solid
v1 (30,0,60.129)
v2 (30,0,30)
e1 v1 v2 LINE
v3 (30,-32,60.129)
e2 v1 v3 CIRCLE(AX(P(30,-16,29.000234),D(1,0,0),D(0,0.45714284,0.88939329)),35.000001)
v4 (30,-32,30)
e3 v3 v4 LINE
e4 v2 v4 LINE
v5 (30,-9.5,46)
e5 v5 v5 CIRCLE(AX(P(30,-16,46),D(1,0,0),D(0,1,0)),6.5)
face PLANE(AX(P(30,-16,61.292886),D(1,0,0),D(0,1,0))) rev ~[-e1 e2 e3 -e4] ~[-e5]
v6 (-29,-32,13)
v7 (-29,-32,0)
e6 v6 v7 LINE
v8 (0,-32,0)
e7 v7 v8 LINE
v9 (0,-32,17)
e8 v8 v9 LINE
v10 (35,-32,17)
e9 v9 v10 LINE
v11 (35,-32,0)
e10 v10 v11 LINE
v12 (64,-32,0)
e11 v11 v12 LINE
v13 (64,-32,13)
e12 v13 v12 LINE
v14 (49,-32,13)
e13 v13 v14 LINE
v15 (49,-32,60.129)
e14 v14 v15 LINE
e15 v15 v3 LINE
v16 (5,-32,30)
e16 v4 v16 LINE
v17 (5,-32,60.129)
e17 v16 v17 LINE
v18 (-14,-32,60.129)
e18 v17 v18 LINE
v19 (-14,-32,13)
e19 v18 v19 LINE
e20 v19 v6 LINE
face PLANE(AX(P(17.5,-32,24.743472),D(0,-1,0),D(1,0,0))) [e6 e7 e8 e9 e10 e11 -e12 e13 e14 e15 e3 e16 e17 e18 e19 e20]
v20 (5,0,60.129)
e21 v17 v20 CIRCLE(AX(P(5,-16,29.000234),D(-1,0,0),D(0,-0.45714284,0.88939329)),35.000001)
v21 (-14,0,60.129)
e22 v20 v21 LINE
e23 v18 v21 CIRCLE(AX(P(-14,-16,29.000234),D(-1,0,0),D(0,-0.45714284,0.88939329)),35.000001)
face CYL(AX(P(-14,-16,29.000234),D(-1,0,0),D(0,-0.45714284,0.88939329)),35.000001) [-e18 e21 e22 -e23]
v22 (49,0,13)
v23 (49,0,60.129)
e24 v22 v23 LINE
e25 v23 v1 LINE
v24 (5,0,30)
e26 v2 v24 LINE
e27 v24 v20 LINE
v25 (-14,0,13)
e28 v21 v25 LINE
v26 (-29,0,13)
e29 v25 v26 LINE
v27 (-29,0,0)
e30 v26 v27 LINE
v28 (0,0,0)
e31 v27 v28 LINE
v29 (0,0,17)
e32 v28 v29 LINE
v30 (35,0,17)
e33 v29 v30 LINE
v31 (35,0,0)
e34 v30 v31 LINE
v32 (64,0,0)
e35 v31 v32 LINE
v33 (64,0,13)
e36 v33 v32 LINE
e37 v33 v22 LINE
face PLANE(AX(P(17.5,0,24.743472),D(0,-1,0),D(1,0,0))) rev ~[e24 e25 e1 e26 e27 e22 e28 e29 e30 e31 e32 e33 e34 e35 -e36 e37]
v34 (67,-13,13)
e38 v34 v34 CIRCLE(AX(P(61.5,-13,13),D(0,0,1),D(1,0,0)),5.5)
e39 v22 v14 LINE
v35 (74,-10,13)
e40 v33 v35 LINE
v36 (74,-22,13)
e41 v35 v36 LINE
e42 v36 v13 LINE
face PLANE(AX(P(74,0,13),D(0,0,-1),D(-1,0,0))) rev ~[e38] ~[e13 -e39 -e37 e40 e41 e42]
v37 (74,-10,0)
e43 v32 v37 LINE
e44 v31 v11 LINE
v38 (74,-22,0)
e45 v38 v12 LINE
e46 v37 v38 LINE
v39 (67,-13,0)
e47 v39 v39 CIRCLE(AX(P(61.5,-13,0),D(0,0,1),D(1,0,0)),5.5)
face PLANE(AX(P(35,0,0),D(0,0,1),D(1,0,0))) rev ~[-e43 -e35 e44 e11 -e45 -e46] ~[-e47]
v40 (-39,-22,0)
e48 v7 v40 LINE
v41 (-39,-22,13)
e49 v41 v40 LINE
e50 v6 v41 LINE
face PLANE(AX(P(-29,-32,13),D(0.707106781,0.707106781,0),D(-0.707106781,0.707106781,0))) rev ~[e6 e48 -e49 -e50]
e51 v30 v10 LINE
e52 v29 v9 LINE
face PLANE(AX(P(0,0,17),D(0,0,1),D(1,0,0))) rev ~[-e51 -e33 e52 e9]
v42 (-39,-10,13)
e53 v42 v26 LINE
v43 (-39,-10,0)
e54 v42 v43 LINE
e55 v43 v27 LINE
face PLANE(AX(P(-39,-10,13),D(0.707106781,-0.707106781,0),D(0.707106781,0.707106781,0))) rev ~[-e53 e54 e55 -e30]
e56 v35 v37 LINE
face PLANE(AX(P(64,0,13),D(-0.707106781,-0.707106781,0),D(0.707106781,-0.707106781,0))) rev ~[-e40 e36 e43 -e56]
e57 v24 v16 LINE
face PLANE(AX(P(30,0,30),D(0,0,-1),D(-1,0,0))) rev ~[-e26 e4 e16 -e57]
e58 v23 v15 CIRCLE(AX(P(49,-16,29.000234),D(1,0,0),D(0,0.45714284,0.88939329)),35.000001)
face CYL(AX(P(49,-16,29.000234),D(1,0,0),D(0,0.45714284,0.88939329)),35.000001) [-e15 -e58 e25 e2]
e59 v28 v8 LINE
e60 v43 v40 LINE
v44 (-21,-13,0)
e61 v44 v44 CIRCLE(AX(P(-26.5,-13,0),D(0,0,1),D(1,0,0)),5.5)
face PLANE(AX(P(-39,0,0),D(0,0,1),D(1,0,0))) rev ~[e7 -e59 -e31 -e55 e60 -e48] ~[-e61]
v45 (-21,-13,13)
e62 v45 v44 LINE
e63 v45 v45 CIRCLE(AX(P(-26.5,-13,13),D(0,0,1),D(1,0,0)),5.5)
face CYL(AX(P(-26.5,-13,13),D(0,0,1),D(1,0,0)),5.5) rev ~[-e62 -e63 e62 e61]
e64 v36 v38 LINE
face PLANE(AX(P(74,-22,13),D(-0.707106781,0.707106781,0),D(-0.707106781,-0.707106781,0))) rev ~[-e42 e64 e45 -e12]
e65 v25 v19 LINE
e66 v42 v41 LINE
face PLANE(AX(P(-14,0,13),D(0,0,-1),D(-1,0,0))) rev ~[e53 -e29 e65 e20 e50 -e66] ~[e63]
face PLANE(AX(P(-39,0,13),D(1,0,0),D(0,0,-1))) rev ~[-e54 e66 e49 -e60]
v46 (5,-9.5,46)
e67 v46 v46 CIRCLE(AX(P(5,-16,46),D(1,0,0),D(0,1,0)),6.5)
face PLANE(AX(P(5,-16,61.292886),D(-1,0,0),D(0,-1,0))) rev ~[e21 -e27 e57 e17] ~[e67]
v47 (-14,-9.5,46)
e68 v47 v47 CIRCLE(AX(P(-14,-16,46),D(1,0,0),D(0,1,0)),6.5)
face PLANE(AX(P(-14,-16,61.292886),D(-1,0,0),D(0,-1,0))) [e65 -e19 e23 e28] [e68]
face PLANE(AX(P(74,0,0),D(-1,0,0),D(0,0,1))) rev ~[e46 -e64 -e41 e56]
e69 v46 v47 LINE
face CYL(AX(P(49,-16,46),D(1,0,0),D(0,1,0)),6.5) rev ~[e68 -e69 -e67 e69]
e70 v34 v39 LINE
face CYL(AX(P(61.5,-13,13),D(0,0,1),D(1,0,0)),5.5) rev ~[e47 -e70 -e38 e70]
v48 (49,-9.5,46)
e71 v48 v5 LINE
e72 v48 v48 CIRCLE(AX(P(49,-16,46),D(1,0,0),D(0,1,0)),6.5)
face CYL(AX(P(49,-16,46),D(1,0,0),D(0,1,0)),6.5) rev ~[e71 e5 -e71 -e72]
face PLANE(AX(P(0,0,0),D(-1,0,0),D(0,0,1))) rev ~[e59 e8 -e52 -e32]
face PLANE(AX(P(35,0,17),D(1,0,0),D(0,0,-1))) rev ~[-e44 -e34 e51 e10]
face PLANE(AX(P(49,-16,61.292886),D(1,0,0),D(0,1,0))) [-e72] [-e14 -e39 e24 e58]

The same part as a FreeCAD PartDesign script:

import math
import FreeCAD as App
import Part
import Sketcher
from FreeCAD import Vector


def add_polygon(sketch, points):
    """Adds a closed chain of lines whose ends are joined by coincident constraints."""
    first, n = sketch.GeometryCount, len(points)
    for a, b in zip(points, points[1:] + points[:1]):
        sketch.addGeometry(Part.LineSegment(App.Vector(*a, 0), App.Vector(*b, 0)), False)
    for i in range(n):
        sketch.addConstraint(Sketcher.Constraint("Coincident", first + i, 2, first + (i + 1) % n, 1))

doc = App.newDocument("Part")
params = doc.addObject("Spreadsheet::Sheet", "Params")
for row, (alias, value) in enumerate([
    ("sketch1_width", "39 mm"),
    ("sketch1_width2", "35 mm"),
    ("sketch1_width3", "25 mm"),
    ("sketch1_height", "13 mm"),
    ("sketch1_height2", "17 mm"),
    ("pad1_length", "32 mm"),
    ("sketch2_width", "10 mm"),
    ("pocket1_length", "25 mm"),
    ("sketch3_diameter", "11 mm"),
    ("sketch3_width", "10 mm"),
    ("pocket2_length", "25 mm"),
    ("sketch4_diameter", "11 mm"),
    ("pocket3_length", "25 mm"),
    ("sketch5_radius", "35.000001 mm"),
    ("sketch5_width", "32 mm"),
    ("pad2_length", "19 mm"),
    ("sketch6_diameter", "13 mm"),
    ("sketch7_radius", "35.000001 mm"),
    ("sketch7_width", "32 mm"),
    ("pad3_length", "19 mm"),
], start=1):
    params.set(f"A{row}", alias)
    params.set(f"B{row}", "=" + value)
    params.setAlias(f"B{row}", alias)

body = doc.addObject("PartDesign::Body", "Body")

sketch1 = body.newObject("Sketcher::SketchObject", "Sketch")
sketch1.AttachmentSupport = (doc.getObject("XZ_Plane"), [""])
sketch1.MapMode = "FlatFace"
add_polygon(sketch1, [(-39, 13), (-39, 0), (0, 0), (0, 17), (35, 17), (35, 0), (74, 0), (74, 13), (49, 13), (49, 60), (30, 60), (30, 30), (5, 30), (5, 60), (-14, 60), (-14, 13)])
sketch1.addConstraint([
    Sketcher.Constraint("Vertical", 0),
    Sketcher.Constraint("Horizontal", 1),
    Sketcher.Constraint("Vertical", 2),
    Sketcher.Constraint("Horizontal", 3),
    Sketcher.Constraint("Vertical", 4),
    Sketcher.Constraint("Horizontal", 5),
    Sketcher.Constraint("Vertical", 6),
    Sketcher.Constraint("Horizontal", 7),
    Sketcher.Constraint("Vertical", 8),
    Sketcher.Constraint("Horizontal", 9),
    Sketcher.Constraint("Vertical", 10),
    Sketcher.Constraint("Horizontal", 11),
    Sketcher.Constraint("Vertical", 12),
    Sketcher.Constraint("Horizontal", 13),
    Sketcher.Constraint("Vertical", 14),
    Sketcher.Constraint("Horizontal", 15),
    Sketcher.Constraint("Coincident", 1, 2, -1, 1),
    Sketcher.Constraint("PointOnObject", 4, 2, -1),
    Sketcher.Constraint("Horizontal", 9, 2, 12, 2),
    Sketcher.Constraint("Horizontal", 7, 2, 14, 2),
    Sketcher.Constraint("Equal", 1, 5),
    Sketcher.Constraint("Equal", 7, 11),
    Sketcher.Constraint("Equal", 9, 13),
    Sketcher.Constraint("Equal", 11, 15),
    Sketcher.Constraint("DistanceX", 1, 1, 1, 2, 39.0),
    Sketcher.Constraint("DistanceX", 3, 1, 3, 2, 35.0),
    Sketcher.Constraint("DistanceX", 7, 2, 7, 1, 25.0),
    Sketcher.Constraint("DistanceY", 0, 2, 0, 1, 13.0),
    Sketcher.Constraint("DistanceY", 2, 1, 2, 2, 17.0),
    Sketcher.Constraint("DistanceY", -1, 1, 10, 2, 30.0),
    Sketcher.Constraint("DistanceY", 8, 1, 8, 2, 47.129),
])
sketch1.setExpression("Constraints[40]", "Params.sketch1_width")
sketch1.setExpression("Constraints[41]", "Params.sketch1_width2")
sketch1.setExpression("Constraints[42]", "Params.sketch1_width3")
sketch1.setExpression("Constraints[43]", "Params.sketch1_height")
sketch1.setExpression("Constraints[44]", "Params.sketch1_height2")
pad1 = body.newObject("PartDesign::Pad", "Pad")
pad1.Profile = sketch1
pad1.setExpression("Length", "Params.pad1_length")

sketch2 = body.newObject("Sketcher::SketchObject", "Sketch001")
sketch2.AttachmentSupport = (doc.getObject("XY_Plane"), [""])
sketch2.MapMode = "FlatFace"
sketch2.AttachmentOffset = App.Placement(Vector(0, 0, 13), App.Rotation())
add_polygon(sketch2, [(-39, -32), (-29, -32), (-39, -22)])
add_polygon(sketch2, [(-39, 0), (-39, -10), (-29, 0)])
sketch2.addConstraint([
    Sketcher.Constraint("Horizontal", 0),
    Sketcher.Constraint("Vertical", 2),
    Sketcher.Constraint("Vertical", 3),
    Sketcher.Constraint("Horizontal", 5),
    Sketcher.Constraint("PointOnObject", 4, 2, -1),
    Sketcher.Constraint("Perpendicular", 1, 4),
    Sketcher.Constraint("Vertical", 2, 2, 3, 2),
    Sketcher.Constraint("Vertical", 0, 2, 4, 2),
    Sketcher.Constraint("Equal", 5, 2),
    Sketcher.Constraint("DistanceX", 0, 1, 0, 2, 10.0),
    Sketcher.Constraint("DistanceX", 0, 2, -1, 1, 29.0),
    Sketcher.Constraint("DistanceY", 0, 2, -1, 1, 32.0),
])
sketch2.setExpression("Constraints[15]", "Params.sketch2_width")
pocket1 = body.newObject("PartDesign::Pocket", "Pocket")
pocket1.Profile = sketch2
pocket1.setExpression("Length", "Params.pocket1_length")

sketch3 = body.newObject("Sketcher::SketchObject", "Sketch002")
sketch3.AttachmentSupport = (doc.getObject("XY_Plane"), [""])
sketch3.MapMode = "FlatFace"
sketch3.AttachmentOffset = App.Placement(Vector(0, 0, 13), App.Rotation())
sketch3.addGeometry(Part.Circle(Vector(62, -13, 0), Vector(0, 0, 1), 6), False)
add_polygon(sketch3, [(74, -22), (64, -32), (74, -32)])
add_polygon(sketch3, [(64, 0), (74, -10), (74, 0)])
sketch3.addConstraint([
    Sketcher.Constraint("Horizontal", 2),
    Sketcher.Constraint("Vertical", 3),
    Sketcher.Constraint("Vertical", 5),
    Sketcher.Constraint("Horizontal", 6),
    Sketcher.Constraint("PointOnObject", 5, 2, -1),
    Sketcher.Constraint("Perpendicular", 1, 4),
    Sketcher.Constraint("Vertical", 3, 2, 4, 2),
    Sketcher.Constraint("Vertical", 1, 2, 6, 2),
    Sketcher.Constraint("Equal", 6, 3),
    Sketcher.Constraint("Diameter", 0, 11.0),
    Sketcher.Constraint("DistanceX", 2, 1, 2, 2, 10.0),
    Sketcher.Constraint("DistanceY", 0, 3, -1, 1, 13.0),
    Sketcher.Constraint("DistanceX", -1, 1, 1, 2, 64.0),
    Sketcher.Constraint("DistanceY", 1, 2, -1, 1, 32.0),
    Sketcher.Constraint("DistanceX", -1, 1, 0, 3, 61.5),
])
sketch3.setExpression("Constraints[15]", "Params.sketch3_diameter")
sketch3.setExpression("Constraints[16]", "Params.sketch3_width")
pocket2 = body.newObject("PartDesign::Pocket", "Pocket001")
pocket2.Profile = sketch3
pocket2.setExpression("Length", "Params.pocket2_length")

sketch4 = body.newObject("Sketcher::SketchObject", "Sketch003")
sketch4.AttachmentSupport = (doc.getObject("XY_Plane"), [""])
sketch4.MapMode = "FlatFace"
sketch4.AttachmentOffset = App.Placement(Vector(0, 0, 13), App.Rotation())
sketch4.addGeometry(Part.Circle(Vector(-26, -13, 0), Vector(0, 0, 1), 6), False)
sketch4.addConstraint([
    Sketcher.Constraint("Diameter", 0, 11.0),
    Sketcher.Constraint("DistanceY", 0, 3, -1, 1, 13.0),
    Sketcher.Constraint("DistanceX", 0, 3, -1, 1, 26.5),
])
sketch4.setExpression("Constraints[0]", "Params.sketch4_diameter")
pocket3 = body.newObject("PartDesign::Pocket", "Pocket002")
pocket3.Profile = sketch4
pocket3.setExpression("Length", "Params.pocket3_length")

sketch5 = body.newObject("Sketcher::SketchObject", "Sketch004")
sketch5.AttachmentSupport = (doc.getObject("YZ_Plane"), [""])
sketch5.MapMode = "FlatFace"
sketch5.AttachmentOffset = App.Placement(Vector(0, 0, 49), App.Rotation())
sketch5.addGeometry([
    Part.LineSegment(Vector(-32, 60, 0), Vector(0, 60, 0)),
    Part.ArcOfCircle(Part.Circle(Vector(-16, 29, 0), Vector(0, 0, 1), 35), math.radians(63), math.radians(117)),
], False)
sketch5.addConstraint([
    Sketcher.Constraint("Coincident", 0, 1, 1, 2),
    Sketcher.Constraint("Coincident", 1, 1, 0, 2),
    Sketcher.Constraint("Horizontal", 0),
    Sketcher.Constraint("PointOnObject", 1, 1, -2),
    Sketcher.Constraint("Radius", 1, 35.000001),
    Sketcher.Constraint("DistanceX", 0, 1, 0, 2, 32.0),
    Sketcher.Constraint("DistanceY", -1, 1, 0, 1, 60.129),
])
sketch5.setExpression("Constraints[4]", "Params.sketch5_radius")
sketch5.setExpression("Constraints[5]", "Params.sketch5_width")
pad2 = body.newObject("PartDesign::Pad", "Pad001")
pad2.Profile = sketch5
pad2.setExpression("Length", "Params.pad2_length")
pad2.Reversed = True

sketch6 = body.newObject("Sketcher::SketchObject", "Sketch005")
sketch6.AttachmentSupport = (doc.getObject("YZ_Plane"), [""])
sketch6.MapMode = "FlatFace"
sketch6.AttachmentOffset = App.Placement(Vector(0, 0, 49), App.Rotation())
sketch6.addGeometry(Part.Circle(Vector(-16, 46, 0), Vector(0, 0, 1), 6), False)
sketch6.addConstraint([
    Sketcher.Constraint("Diameter", 0, 13.0),
    Sketcher.Constraint("DistanceX", 0, 3, -1, 1, 16.0),
    Sketcher.Constraint("DistanceY", -1, 1, 0, 3, 46.0),
])
sketch6.setExpression("Constraints[0]", "Params.sketch6_diameter")
pocket4 = body.newObject("PartDesign::Pocket", "Pocket003")
pocket4.Profile = sketch6
pocket4.Type = "ThroughAll"

sketch7 = body.newObject("Sketcher::SketchObject", "Sketch006")
sketch7.AttachmentSupport = (doc.getObject("YZ_Plane"), [""])
sketch7.MapMode = "FlatFace"
sketch7.AttachmentOffset = App.Placement(Vector(0, 0, -14), App.Rotation())
sketch7.addGeometry([
    Part.LineSegment(Vector(0, 60, 0), Vector(-32, 60, 0)),
    Part.ArcOfCircle(Part.Circle(Vector(-16, 29, 0), Vector(0, 0, 1), 35), math.radians(63), math.radians(117)),
], False)
sketch7.addConstraint([
    Sketcher.Constraint("Coincident", 0, 1, 1, 1),
    Sketcher.Constraint("Coincident", 1, 2, 0, 2),
    Sketcher.Constraint("Horizontal", 0),
    Sketcher.Constraint("PointOnObject", 0, 1, -2),
    Sketcher.Constraint("Radius", 1, 35.000001),
    Sketcher.Constraint("DistanceX", 0, 2, 0, 1, 32.0),
    Sketcher.Constraint("DistanceY", -1, 1, 0, 1, 60.129),
])
sketch7.setExpression("Constraints[4]", "Params.sketch7_radius")
sketch7.setExpression("Constraints[5]", "Params.sketch7_width")
pad3 = body.newObject("PartDesign::Pad", "Pad002")
pad3.Profile = sketch7
pad3.setExpression("Length", "Params.pad3_length")

doc.recompute()
